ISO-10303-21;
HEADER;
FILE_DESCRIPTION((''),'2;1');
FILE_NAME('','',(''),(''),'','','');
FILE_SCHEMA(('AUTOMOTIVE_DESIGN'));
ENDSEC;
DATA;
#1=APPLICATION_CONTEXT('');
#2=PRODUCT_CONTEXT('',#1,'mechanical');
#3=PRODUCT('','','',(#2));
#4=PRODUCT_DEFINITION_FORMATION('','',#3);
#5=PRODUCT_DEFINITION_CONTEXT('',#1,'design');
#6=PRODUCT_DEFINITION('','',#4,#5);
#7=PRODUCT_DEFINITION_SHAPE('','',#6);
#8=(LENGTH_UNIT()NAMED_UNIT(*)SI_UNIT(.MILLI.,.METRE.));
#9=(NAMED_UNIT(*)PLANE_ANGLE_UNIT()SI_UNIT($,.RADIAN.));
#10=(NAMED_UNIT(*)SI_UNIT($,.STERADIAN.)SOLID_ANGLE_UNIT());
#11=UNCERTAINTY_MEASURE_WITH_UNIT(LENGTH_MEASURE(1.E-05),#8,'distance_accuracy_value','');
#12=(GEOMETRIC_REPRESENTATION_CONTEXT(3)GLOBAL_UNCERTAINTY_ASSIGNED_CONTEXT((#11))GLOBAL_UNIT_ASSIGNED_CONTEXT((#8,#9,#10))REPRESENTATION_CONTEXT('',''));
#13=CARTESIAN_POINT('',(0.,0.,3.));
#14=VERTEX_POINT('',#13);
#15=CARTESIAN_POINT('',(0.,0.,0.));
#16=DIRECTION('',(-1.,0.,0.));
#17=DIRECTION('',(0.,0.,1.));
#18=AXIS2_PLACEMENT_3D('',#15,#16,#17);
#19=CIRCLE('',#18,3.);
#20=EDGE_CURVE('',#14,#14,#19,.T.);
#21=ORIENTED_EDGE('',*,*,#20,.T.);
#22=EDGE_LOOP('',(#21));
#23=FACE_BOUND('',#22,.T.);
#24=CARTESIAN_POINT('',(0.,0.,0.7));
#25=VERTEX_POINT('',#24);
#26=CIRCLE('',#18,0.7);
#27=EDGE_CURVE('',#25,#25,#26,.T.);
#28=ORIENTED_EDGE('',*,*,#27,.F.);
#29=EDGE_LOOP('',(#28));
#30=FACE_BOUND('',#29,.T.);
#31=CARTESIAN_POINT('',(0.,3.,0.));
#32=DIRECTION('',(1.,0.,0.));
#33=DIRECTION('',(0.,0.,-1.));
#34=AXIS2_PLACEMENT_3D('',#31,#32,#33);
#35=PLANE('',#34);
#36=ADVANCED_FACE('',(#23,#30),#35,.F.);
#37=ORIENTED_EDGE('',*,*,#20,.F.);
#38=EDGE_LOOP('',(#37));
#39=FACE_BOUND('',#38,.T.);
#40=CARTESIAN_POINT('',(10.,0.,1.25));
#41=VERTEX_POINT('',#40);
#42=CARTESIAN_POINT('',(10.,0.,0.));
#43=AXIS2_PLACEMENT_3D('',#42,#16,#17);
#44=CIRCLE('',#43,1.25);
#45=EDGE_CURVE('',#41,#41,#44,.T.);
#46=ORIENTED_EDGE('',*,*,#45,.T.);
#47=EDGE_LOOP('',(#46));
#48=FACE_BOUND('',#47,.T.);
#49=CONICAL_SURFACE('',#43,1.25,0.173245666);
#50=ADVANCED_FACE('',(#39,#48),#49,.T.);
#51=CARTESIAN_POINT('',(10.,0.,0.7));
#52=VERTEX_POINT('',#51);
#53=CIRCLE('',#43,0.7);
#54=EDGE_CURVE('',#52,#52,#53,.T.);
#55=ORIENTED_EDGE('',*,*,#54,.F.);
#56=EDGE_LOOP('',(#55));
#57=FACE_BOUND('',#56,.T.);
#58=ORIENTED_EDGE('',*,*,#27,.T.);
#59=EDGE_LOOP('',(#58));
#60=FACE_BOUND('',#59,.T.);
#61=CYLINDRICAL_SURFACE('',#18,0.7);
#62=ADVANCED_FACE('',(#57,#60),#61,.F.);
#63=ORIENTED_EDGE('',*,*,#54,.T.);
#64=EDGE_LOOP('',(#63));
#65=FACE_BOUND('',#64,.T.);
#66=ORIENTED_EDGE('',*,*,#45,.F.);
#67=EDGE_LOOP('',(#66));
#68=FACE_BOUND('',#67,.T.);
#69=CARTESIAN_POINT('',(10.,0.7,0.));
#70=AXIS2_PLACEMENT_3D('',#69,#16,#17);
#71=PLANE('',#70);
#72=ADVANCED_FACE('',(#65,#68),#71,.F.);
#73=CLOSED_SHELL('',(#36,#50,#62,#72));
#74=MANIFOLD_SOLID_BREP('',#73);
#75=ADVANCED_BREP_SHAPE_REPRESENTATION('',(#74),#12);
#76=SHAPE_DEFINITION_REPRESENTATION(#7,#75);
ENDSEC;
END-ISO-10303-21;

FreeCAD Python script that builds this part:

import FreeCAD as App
import Part
import Sketcher
from FreeCAD import Vector
Q = App.Units.Quantity


def add_polygon(sketch, points):
    """Adds a closed chain of lines whose ends are joined by coincident constraints."""
    first, n = sketch.GeometryCount, len(points)
    for a, b in zip(points, points[1:] + points[:1]):
        sketch.addGeometry(Part.LineSegment(App.Vector(*a, 0), App.Vector(*b, 0)), False)
    for i in range(n):
        sketch.addConstraint(Sketcher.Constraint("Coincident", first + i, 2, first + (i + 1) % n, 1))

doc = App.newDocument("Part")
body = doc.addObject("PartDesign::Body", "Body")

sketch1 = doc.addObject("Sketcher::SketchObject", "Sketch")
body.addObject(sketch1)
sketch1.AttachmentSupport = (doc.XY_Plane, [""])
sketch1.MapMode = "FlatFace"
add_polygon(sketch1, [(0, 0.7), (10, 0.7), (10, 1.25), (0, 3)])
sketch1.addConstraint([
    Sketcher.Constraint("Horizontal", 0),
    Sketcher.Constraint("Vertical", 1),
    Sketcher.Constraint("Vertical", 3),
    Sketcher.Constraint("PointOnObject", 2, 2, -2),
    Sketcher.Constraint("DistanceX", 0, 1, 0, 2, Q("10 mm")),
    Sketcher.Constraint("DistanceY", 3, 2, 3, 1, Q("2.3 mm")),
    Sketcher.Constraint("DistanceY", -1, 1, 2, 2, Q("3 mm")),
    Sketcher.Constraint("DistanceY", 1, 1, 1, 2, Q("0.55 mm")),
])
revolution = doc.addObject("PartDesign::Revolution", "Revolution")
body.addObject(revolution)
revolution.Profile = sketch1
revolution.ReferenceAxis = (sketch1, ["H_Axis"])
revolution.Angle = 360

doc.recompute()
